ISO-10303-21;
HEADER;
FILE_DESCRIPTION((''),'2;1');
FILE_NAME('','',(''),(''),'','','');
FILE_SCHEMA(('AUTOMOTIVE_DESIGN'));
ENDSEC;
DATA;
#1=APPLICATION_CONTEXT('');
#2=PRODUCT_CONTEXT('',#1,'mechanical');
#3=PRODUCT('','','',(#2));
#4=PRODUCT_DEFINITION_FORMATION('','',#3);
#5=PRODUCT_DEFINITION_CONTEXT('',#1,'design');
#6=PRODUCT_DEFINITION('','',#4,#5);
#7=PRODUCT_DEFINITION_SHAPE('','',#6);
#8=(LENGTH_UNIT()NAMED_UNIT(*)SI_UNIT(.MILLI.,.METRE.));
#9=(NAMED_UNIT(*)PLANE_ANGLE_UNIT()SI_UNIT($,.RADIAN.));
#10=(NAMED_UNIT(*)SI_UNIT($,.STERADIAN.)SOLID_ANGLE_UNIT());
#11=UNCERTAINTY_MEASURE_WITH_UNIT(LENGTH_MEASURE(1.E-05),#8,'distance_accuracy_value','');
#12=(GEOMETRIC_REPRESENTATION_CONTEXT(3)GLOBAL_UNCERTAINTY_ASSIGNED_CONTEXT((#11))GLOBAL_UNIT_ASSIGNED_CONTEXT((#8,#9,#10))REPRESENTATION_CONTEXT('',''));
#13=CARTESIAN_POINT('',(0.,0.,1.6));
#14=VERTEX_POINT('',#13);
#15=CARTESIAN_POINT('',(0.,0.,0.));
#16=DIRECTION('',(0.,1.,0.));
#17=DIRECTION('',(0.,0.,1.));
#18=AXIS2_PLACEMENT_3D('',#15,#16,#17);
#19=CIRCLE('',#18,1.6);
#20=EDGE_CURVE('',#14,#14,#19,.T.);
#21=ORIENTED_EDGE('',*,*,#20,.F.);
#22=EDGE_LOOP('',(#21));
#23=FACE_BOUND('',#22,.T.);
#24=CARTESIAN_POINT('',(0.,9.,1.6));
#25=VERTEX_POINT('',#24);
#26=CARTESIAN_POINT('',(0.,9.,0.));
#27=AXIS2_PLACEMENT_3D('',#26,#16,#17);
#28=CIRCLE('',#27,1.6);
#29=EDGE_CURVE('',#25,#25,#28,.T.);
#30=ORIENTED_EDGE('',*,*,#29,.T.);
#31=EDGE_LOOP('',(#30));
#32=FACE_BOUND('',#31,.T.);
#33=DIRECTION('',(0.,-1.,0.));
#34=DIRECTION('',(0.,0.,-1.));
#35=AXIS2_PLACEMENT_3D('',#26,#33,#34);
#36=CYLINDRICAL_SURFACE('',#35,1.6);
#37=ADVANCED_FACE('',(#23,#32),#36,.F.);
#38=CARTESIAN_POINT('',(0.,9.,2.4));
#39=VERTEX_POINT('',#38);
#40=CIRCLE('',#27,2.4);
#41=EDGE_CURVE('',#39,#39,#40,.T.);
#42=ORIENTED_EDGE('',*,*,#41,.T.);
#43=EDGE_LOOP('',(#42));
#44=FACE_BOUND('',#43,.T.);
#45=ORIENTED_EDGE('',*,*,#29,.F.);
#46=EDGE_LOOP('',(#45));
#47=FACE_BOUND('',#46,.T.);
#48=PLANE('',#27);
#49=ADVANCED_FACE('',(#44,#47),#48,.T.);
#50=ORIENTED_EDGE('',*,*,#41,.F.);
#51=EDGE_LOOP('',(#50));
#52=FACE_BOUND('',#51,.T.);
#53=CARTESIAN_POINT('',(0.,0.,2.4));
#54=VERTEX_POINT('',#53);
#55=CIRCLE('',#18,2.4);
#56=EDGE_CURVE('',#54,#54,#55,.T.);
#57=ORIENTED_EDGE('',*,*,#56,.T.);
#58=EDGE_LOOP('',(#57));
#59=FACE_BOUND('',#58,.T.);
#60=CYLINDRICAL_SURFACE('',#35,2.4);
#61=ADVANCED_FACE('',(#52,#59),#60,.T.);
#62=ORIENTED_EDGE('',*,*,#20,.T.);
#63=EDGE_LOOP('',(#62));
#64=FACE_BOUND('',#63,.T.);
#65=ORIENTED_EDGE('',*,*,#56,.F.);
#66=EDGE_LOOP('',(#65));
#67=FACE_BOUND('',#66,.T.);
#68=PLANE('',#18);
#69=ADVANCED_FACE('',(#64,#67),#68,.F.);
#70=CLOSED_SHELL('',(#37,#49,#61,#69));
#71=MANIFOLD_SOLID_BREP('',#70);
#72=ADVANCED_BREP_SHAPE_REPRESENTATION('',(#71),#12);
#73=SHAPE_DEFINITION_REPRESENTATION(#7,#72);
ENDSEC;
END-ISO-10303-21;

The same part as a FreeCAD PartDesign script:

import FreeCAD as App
import Part
import Sketcher
from FreeCAD import Vector
Q = App.Units.Quantity

doc = App.newDocument("Part")
body = doc.addObject("PartDesign::Body", "Body")

# Sketch on XZ plane
sketch1 = body.newObject("Sketcher::SketchObject", "Sketch")
sketch1.AttachmentSupport = (doc.getObject("XZ_Plane"), [""])
sketch1.MapMode = "FlatFace"
sketch1.addGeometry(Part.Circle(Vector(0, 0, 0), Vector(0, 0, 1), 2.4), False)
sketch1.addGeometry(Part.Circle(Vector(0, 0, 0), Vector(0, 0, 1), 1.6), False)
sketch1.addConstraint(Sketcher.Constraint("Coincident", 0, 3, -1, 1))
sketch1.addConstraint(Sketcher.Constraint("Coincident", 1, 3, -1, 1))
sketch1.addConstraint(Sketcher.Constraint("Diameter", 0, Q("4.8 mm")))
sketch1.addConstraint(Sketcher.Constraint("Diameter", 1, Q("3.2 mm")))
pad1 = body.newObject("PartDesign::Pad", "Pad")
pad1.Profile = sketch1
pad1.Length = 9
pad1.Reversed = True

doc.recompute()
